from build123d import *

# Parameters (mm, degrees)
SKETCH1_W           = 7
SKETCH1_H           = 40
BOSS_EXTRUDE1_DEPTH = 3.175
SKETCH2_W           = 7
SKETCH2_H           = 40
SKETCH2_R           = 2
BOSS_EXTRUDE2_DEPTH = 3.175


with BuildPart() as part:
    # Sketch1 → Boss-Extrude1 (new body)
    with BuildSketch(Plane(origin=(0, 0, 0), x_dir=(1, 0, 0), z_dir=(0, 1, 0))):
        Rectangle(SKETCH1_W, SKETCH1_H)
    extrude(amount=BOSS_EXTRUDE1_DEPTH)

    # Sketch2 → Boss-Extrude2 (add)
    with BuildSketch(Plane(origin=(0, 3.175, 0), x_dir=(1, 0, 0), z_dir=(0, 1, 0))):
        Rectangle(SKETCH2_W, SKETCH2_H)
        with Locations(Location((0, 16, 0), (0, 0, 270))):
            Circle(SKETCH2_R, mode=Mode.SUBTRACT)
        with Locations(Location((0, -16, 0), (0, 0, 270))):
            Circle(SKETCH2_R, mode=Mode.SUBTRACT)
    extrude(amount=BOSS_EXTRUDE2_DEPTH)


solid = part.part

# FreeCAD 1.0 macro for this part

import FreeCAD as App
import Part
import Sketcher
from FreeCAD import Vector
Q = App.Units.Quantity

doc = App.newDocument("Part")
body = doc.addObject("PartDesign::Body", "Body")

# Sketch on XZ plane
sketch1 = body.newObject("Sketcher::SketchObject", "Sketch")
sketch1.AttachmentSupport = (doc.getObject("XZ_Plane"), [""])
sketch1.MapMode = "FlatFace"
sketch1.addGeometry(Part.LineSegment(Vector(-4, -20, 0), Vector(-4, 20, 0)), False)
sketch1.addGeometry(Part.LineSegment(Vector(-4, 20, 0), Vector(4, 20, 0)), False)
sketch1.addGeometry(Part.LineSegment(Vector(4, 20, 0), Vector(4, -20, 0)), False)
sketch1.addGeometry(Part.LineSegment(Vector(4, -20, 0), Vector(-4, -20, 0)), False)
sketch1.addConstraint(Sketcher.Constraint("Coincident", 0, 2, 1, 1))
sketch1.addConstraint(Sketcher.Constraint("Coincident", 1, 2, 2, 1))
sketch1.addConstraint(Sketcher.Constraint("Coincident", 2, 2, 3, 1))
sketch1.addConstraint(Sketcher.Constraint("Coincident", 3, 2, 0, 1))
sketch1.addConstraint(Sketcher.Constraint("Vertical", 0))
sketch1.addConstraint(Sketcher.Constraint("Horizontal", 1))
sketch1.addConstraint(Sketcher.Constraint("Vertical", 2))
sketch1.addConstraint(Sketcher.Constraint("Horizontal", 3))
sketch1.addConstraint(Sketcher.Constraint("Symmetric", 0, 2, 2, 2, -1, 1))
sketch1.addConstraint(Sketcher.Constraint("DistanceX", 1, 1, 1, 2, Q("7 mm")))
sketch1.addConstraint(Sketcher.Constraint("DistanceY", 0, 1, 0, 2, Q("40 mm")))
pad1 = body.newObject("PartDesign::Pad", "Pad")
pad1.Profile = sketch1
pad1.Length = 3.175
pad1.Reversed = True

# Sketch on XZ plane
sketch2 = body.newObject("Sketcher::SketchObject", "Sketch001")
sketch2.AttachmentSupport = (doc.getObject("XZ_Plane"), [""])
sketch2.MapMode = "FlatFace"
sketch2.AttachmentOffset = App.Placement(Vector(0, 0, -3.175), App.Rotation())
sketch2.addGeometry(Part.LineSegment(Vector(-3.5, -20, 0), Vector(-3.5, 20, 0)), False)
sketch2.addGeometry(Part.LineSegment(Vector(-3.5, 20, 0), Vector(3.5, 20, 0)), False)
sketch2.addGeometry(Part.LineSegment(Vector(3.5, 20, 0), Vector(3.5, -20, 0)), False)
sketch2.addGeometry(Part.LineSegment(Vector(3.5, -20, 0), Vector(-3.5, -20, 0)), False)
sketch2.addGeometry(Part.Circle(Vector(0, 16, 0), Vector(0, 0, 1), 2), False)
sketch2.addGeometry(Part.Circle(Vector(0, -16, 0), Vector(0, 0, 1), 2), False)
sketch2.addConstraint(Sketcher.Constraint("Coincident", 0, 2, 1, 1))
sketch2.addConstraint(Sketcher.Constraint("Coincident", 1, 2, 2, 1))
sketch2.addConstraint(Sketcher.Constraint("Coincident", 2, 2, 3, 1))
sketch2.addConstraint(Sketcher.Constraint("Coincident", 3, 2, 0, 1))
sketch2.addConstraint(Sketcher.Constraint("Vertical", 0))
sketch2.addConstraint(Sketcher.Constraint("Horizontal", 1))
sketch2.addConstraint(Sketcher.Constraint("Vertical", 2))
sketch2.addConstraint(Sketcher.Constraint("Horizontal", 3))
sketch2.addConstraint(Sketcher.Constraint("Equal", 4, 5))
sketch2.addConstraint(Sketcher.Constraint("Symmetric", 4, 3, 5, 3, -1, 1))
sketch2.addConstraint(Sketcher.Constraint("Symmetric", 0, 2, 2, 2, -1, 1))
sketch2.addConstraint(Sketcher.Constraint("PointOnObject", 4, 3, -2))
sketch2.addConstraint(Sketcher.Constraint("Diameter", 4, Q("4 mm")))
sketch2.addConstraint(Sketcher.Constraint("DistanceX", 1, 1, 1, 2, Q("7 mm")))
sketch2.addConstraint(Sketcher.Constraint("DistanceY", 0, 1, 0, 2, Q("40 mm")))
sketch2.addConstraint(Sketcher.Constraint("DistanceY", -1, 1, 4, 3, Q("16 mm")))
pad2 = body.newObject("PartDesign::Pad", "Pad001")
pad2.Profile = sketch2
pad2.Length = 3.175
pad2.Reversed = True

doc.recompute()
